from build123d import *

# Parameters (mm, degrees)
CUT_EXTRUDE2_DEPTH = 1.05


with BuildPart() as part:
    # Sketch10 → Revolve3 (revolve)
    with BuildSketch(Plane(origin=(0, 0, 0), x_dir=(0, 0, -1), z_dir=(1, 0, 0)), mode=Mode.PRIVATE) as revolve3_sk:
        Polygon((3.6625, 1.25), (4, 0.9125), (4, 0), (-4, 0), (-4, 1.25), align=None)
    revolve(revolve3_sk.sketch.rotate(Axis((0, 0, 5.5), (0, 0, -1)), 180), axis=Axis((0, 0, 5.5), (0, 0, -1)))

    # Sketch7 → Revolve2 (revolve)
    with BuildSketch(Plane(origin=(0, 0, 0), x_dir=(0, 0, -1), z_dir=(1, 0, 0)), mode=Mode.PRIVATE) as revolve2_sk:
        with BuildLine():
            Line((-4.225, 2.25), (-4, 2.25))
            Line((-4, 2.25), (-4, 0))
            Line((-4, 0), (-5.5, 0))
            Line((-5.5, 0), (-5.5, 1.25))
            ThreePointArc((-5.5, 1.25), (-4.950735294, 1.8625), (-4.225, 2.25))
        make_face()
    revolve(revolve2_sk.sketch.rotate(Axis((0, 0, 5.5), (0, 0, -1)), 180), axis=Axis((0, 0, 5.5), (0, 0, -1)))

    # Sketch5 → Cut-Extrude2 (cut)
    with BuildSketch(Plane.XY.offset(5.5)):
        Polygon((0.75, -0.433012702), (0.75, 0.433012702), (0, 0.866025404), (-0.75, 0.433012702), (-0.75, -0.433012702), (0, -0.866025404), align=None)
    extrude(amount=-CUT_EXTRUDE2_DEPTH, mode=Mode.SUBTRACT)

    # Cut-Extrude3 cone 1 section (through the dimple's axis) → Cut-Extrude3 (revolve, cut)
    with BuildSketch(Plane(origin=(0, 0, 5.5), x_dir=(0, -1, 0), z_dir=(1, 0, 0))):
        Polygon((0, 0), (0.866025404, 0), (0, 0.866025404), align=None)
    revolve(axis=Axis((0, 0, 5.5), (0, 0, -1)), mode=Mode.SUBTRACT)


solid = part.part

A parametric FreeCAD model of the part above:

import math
import FreeCAD as App
import Part
import Sketcher

V = App.Vector
Q = App.Units.Quantity

doc = App.newDocument("Part")
body = doc.addObject("PartDesign::Body", "Body")

# Sketch on YZ plane
sketch1 = doc.addObject("Sketcher::SketchObject", "Sketch")
body.addObject(sketch1)
sketch1.AttachmentSupport = (doc.YZ_Plane, [""])
sketch1.MapMode = "FlatFace"
sketch1.addGeometry([
    Part.LineSegment(V(0.91, -4, 0), V(1.25, -3.66, 0)),  # 0
    Part.LineSegment(V(1.25, -3.66, 0), V(1.25, 4, 0)),  # 1
    Part.LineSegment(V(1.25, 4, 0), V(0, 4, 0)),  # 2
    Part.LineSegment(V(0, 4, 0), V(0, -4, 0)),  # 3
    Part.LineSegment(V(0, -4, 0), V(0.91, -4, 0)),  # 4
], False)
sketch1.addConstraint([
    Sketcher.Constraint("Coincident", 0, 2, 1, 1),
    Sketcher.Constraint("Coincident", 1, 2, 2, 1),
    Sketcher.Constraint("Coincident", 2, 2, 3, 1),
    Sketcher.Constraint("Coincident", 3, 2, 4, 1),
    Sketcher.Constraint("Coincident", 4, 2, 0, 1),
    Sketcher.Constraint("Vertical", 1),
    Sketcher.Constraint("Horizontal", 2),
    Sketcher.Constraint("Vertical", 3),
    Sketcher.Constraint("Horizontal", 4),
    Sketcher.Constraint("Symmetric", 2, 2, 3, 2, -1, 1),
    Sketcher.Constraint("DistanceY", 3, 2, 3, 1, 8.0),
    Sketcher.Constraint("Angle", 0, Q("45 deg")),
    Sketcher.Constraint("DistanceX", 2, 2, 2, 1, 1.25),
    Sketcher.Constraint("DistanceX", 4, 1, 4, 2, 0.9125),
])
revolution = doc.addObject("PartDesign::Revolution", "Revolution")
body.addObject(revolution)
revolution.Profile = sketch1
revolution.ReferenceAxis = (sketch1, ["V_Axis"])
revolution.Angle = 360

# Sketch on YZ plane
sketch2 = doc.addObject("Sketcher::SketchObject", "Sketch001")
body.addObject(sketch2)
sketch2.AttachmentSupport = (doc.YZ_Plane, [""])
sketch2.MapMode = "FlatFace"
sketch2.addGeometry([
    Part.LineSegment(V(2.25, 4, 0), V(2.25, 4.22, 0)),  # 0
    Part.ArcOfCircle(Part.Circle(V(0, 3.49, 0), V(0, 0, 1), 2.37), math.radians(18), math.radians(58)),  # 1
    Part.LineSegment(V(1.25, 5.5, 0), V(0, 5.5, 0)),  # 2
    Part.LineSegment(V(0, 5.5, 0), V(0, 4, 0)),  # 3
    Part.LineSegment(V(0, 4, 0), V(2.25, 4, 0)),  # 4
], False)
sketch2.addConstraint([
    Sketcher.Constraint("Coincident", 0, 2, 1, 1),
    Sketcher.Constraint("Coincident", 1, 2, 2, 1),
    Sketcher.Constraint("Coincident", 2, 2, 3, 1),
    Sketcher.Constraint("Coincident", 3, 2, 4, 1),
    Sketcher.Constraint("Coincident", 4, 2, 0, 1),
    Sketcher.Constraint("Vertical", 0),
    Sketcher.Constraint("Horizontal", 2),
    Sketcher.Constraint("Vertical", 3),
    Sketcher.Constraint("Horizontal", 4),
    Sketcher.Constraint("PointOnObject", 1, 3, -2),
    Sketcher.Constraint("PointOnObject", 2, 2, -2),
    Sketcher.Constraint("DistanceY", 3, 2, 3, 1, 1.5),
    Sketcher.Constraint("DistanceY", -1, 1, 3, 2, 4.0),
    Sketcher.Constraint("DistanceX", 1, 2, 0, 2, 1.0),
    Sketcher.Constraint("DistanceX", 2, 2, 2, 1, 1.25),
    Sketcher.Constraint("DistanceY", 0, 1, 0, 2, 0.225),
])
revolution2 = doc.addObject("PartDesign::Revolution", "Revolution001")
body.addObject(revolution2)
revolution2.Profile = sketch2
revolution2.ReferenceAxis = (sketch2, ["V_Axis"])
revolution2.Angle = 360

# Sketch on XY plane
sketch3 = doc.addObject("Sketcher::SketchObject", "Sketch002")
body.addObject(sketch3)
sketch3.AttachmentSupport = (doc.XY_Plane, [""])
sketch3.MapMode = "FlatFace"
sketch3.AttachmentOffset = App.Placement(V(0, 0, 5.5), App.Rotation())
sketch3.addGeometry([
    Part.LineSegment(V(0.8, -0.4, 0), V(0.8, 0.4, 0)),  # 0
    Part.LineSegment(V(0.8, 0.4, 0), V(0, 0.9, 0)),  # 1
    Part.LineSegment(V(0, 0.9, 0), V(-0.8, 0.4, 0)),  # 2
    Part.LineSegment(V(-0.8, 0.4, 0), V(-0.8, -0.4, 0)),  # 3
    Part.LineSegment(V(-0.8, -0.4, 0), V(0, -0.9, 0)),  # 4
    Part.LineSegment(V(0, -0.9, 0), V(0.8, -0.4, 0)),  # 5
], False)
sketch3.addConstraint([
    Sketcher.Constraint("Coincident", 0, 2, 1, 1),
    Sketcher.Constraint("Coincident", 1, 2, 2, 1),
    Sketcher.Constraint("Coincident", 2, 2, 3, 1),
    Sketcher.Constraint("Coincident", 3, 2, 4, 1),
    Sketcher.Constraint("Coincident", 4, 2, 5, 1),
    Sketcher.Constraint("Coincident", 5, 2, 0, 1),
    Sketcher.Constraint("Vertical", 0),
    Sketcher.Constraint("Vertical", 3),
    Sketcher.Constraint("Symmetric", 0, 2, 3, 2, -1, 1),
    Sketcher.Constraint("Symmetric", 1, 2, 4, 2, -1, 1),
    Sketcher.Constraint("PointOnObject", 1, 2, -2),
    Sketcher.Constraint("Parallel", 2, 5),
    Sketcher.Constraint("Horizontal", 0, 2, 2, 2),
    Sketcher.Constraint("Angle", 1, Q("150 deg")),
    Sketcher.Constraint("DistanceX", 2, 2, 0, 2, 1.5),
    Sketcher.Constraint("DistanceY", 0, 1, 0, 2, 0.866025),
])
pocket1 = doc.addObject("PartDesign::Pocket", "Pocket")
body.addObject(pocket1)
pocket1.Profile = sketch3
pocket1.Length = 1.05

# Sketch on YZ plane
sketch4 = doc.addObject("Sketcher::SketchObject", "Sketch003")
body.addObject(sketch4)
sketch4.AttachmentSupport = (doc.YZ_Plane, [""])
sketch4.MapMode = "FlatFace"
sketch4.addGeometry([
    Part.LineSegment(V(0, 5.5, 0), V(-0.9, 5.5, 0)),
    Part.LineSegment(V(-0.9, 5.5, 0), V(0, 4.6, 0)),
    Part.LineSegment(V(0, 4.6, 0), V(0, 5.5, 0)),
], False)
sketch4.addConstraint([
    Sketcher.Constraint("Coincident", 0, 2, 1, 1),
    Sketcher.Constraint("Coincident", 1, 2, 2, 1),
    Sketcher.Constraint("Coincident", 2, 2, 0, 1),
    Sketcher.Constraint("Horizontal", 0),
    Sketcher.Constraint("Vertical", 2),
    Sketcher.Constraint("PointOnObject", 1, 2, -2),
    Sketcher.Constraint("Equal", 0, 2),
    Sketcher.Constraint("DistanceY", -1, 1, 0, 2, 5.5),
    Sketcher.Constraint("DistanceX", 0, 2, 0, 1, 0.866025),
])
groove = doc.addObject("PartDesign::Groove", "Groove")
body.addObject(groove)
groove.Profile = sketch4
groove.ReferenceAxis = (sketch4, ["V_Axis"])
groove.Angle = 360

doc.recompute()
